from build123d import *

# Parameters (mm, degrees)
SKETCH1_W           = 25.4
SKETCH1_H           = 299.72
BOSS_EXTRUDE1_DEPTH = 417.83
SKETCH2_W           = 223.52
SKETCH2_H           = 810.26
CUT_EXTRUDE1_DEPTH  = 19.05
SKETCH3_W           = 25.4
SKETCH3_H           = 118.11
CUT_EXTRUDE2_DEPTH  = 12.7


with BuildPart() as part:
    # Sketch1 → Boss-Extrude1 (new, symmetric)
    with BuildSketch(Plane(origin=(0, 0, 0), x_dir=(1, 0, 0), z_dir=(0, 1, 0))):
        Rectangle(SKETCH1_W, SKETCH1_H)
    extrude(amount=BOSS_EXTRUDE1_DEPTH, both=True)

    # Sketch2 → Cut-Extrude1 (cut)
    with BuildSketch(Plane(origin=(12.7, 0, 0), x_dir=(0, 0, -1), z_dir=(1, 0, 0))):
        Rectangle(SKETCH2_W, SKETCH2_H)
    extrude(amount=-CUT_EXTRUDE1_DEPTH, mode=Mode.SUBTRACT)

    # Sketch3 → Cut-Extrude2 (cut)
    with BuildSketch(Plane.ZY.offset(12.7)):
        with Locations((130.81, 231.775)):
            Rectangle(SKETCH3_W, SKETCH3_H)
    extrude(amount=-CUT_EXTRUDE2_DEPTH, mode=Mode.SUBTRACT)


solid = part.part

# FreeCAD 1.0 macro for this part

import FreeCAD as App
import Part
import Sketcher
Q = App.Units.Quantity


def add_polygon(sketch, points):
    """Adds a closed chain of lines whose ends are joined by coincident constraints."""
    first, n = sketch.GeometryCount, len(points)
    for a, b in zip(points, points[1:] + points[:1]):
        sketch.addGeometry(Part.LineSegment(App.Vector(*a, 0), App.Vector(*b, 0)), False)
    for i in range(n):
        sketch.addConstraint(Sketcher.Constraint("Coincident", first + i, 2, first + (i + 1) % n, 1))

doc = App.newDocument("Part")
body = doc.addObject("PartDesign::Body", "Body")

# Sketch on XZ plane
sketch1 = doc.addObject("Sketcher::SketchObject", "Sketch")
body.addObject(sketch1)
sketch1.AttachmentSupport = (doc.XZ_Plane, [""])
sketch1.MapMode = "FlatFace"
add_polygon(sketch1, [(-13, -150), (-13, 150), (13, 150), (13, -150)])  # lines 0-3
sketch1.addConstraint(Sketcher.Constraint("Vertical", 0))
sketch1.addConstraint(Sketcher.Constraint("Horizontal", 1))
sketch1.addConstraint(Sketcher.Constraint("Vertical", 2))
sketch1.addConstraint(Sketcher.Constraint("Horizontal", 3))
sketch1.addConstraint(Sketcher.Constraint("Symmetric", 0, 2, 2, 2, -1, 1))
sketch1.addConstraint(Sketcher.Constraint("DistanceX", 1, 1, 1, 2, Q("1 in")))
sketch1.addConstraint(Sketcher.Constraint("DistanceY", 0, 1, 0, 2, Q("11.8 in")))
pad1 = doc.addObject("PartDesign::Pad", "Pad")
body.addObject(pad1)
pad1.Profile = sketch1
pad1.Length = Q("32.9 in")
pad1.Midplane = True

# Sketch on YZ plane
sketch2 = doc.addObject("Sketcher::SketchObject", "Sketch001")
body.addObject(sketch2)
sketch2.AttachmentSupport = (doc.YZ_Plane, [""])
sketch2.MapMode = "FlatFace"
sketch2.AttachmentOffset = App.Placement(App.Vector(0, 0, 0.5 * 25.4), App.Rotation())
add_polygon(sketch2, [(405, 112), (-405, 112), (-405, -112), (405, -112)])  # lines 0-3
sketch2.addConstraint(Sketcher.Constraint("Horizontal", 0))
sketch2.addConstraint(Sketcher.Constraint("Vertical", 1))
sketch2.addConstraint(Sketcher.Constraint("Horizontal", 2))
sketch2.addConstraint(Sketcher.Constraint("Vertical", 3))
sketch2.addConstraint(Sketcher.Constraint("Symmetric", 0, 2, 2, 2, -1, 1))
sketch2.addConstraint(Sketcher.Constraint("DistanceX", 0, 2, 0, 1, Q("31.9 in")))
sketch2.addConstraint(Sketcher.Constraint("DistanceY", 1, 2, 1, 1, Q("8.8 in")))
pocket1 = doc.addObject("PartDesign::Pocket", "Pocket")
body.addObject(pocket1)
pocket1.Profile = sketch2
pocket1.Length = Q("0.75 in")

# Sketch on YZ plane
sketch3 = doc.addObject("Sketcher::SketchObject", "Sketch002")
body.addObject(sketch3)
sketch3.AttachmentSupport = (doc.YZ_Plane, [""])
sketch3.MapMode = "FlatFace"
sketch3.AttachmentOffset = App.Placement(App.Vector(0, 0, -0.5 * 25.4), App.Rotation())
add_polygon(sketch3, [(291, 118), (173, 118), (173, 144), (291, 144)])  # lines 0-3
sketch3.addConstraint(Sketcher.Constraint("Horizontal", 0))
sketch3.addConstraint(Sketcher.Constraint("Vertical", 1))
sketch3.addConstraint(Sketcher.Constraint("Horizontal", 2))
sketch3.addConstraint(Sketcher.Constraint("Vertical", 3))
sketch3.addConstraint(Sketcher.Constraint("DistanceY", 1, 1, 1, 2, Q("1 in")))
sketch3.addConstraint(Sketcher.Constraint("DistanceX", 0, 2, 0, 1, Q("4.65 in")))
sketch3.addConstraint(Sketcher.Constraint("DistanceX", -1, 1, 0, 2, Q("6.8 in")))
sketch3.addConstraint(Sketcher.Constraint("DistanceY", -1, 1, 0, 2, Q("4.65 in")))
pocket2 = doc.addObject("PartDesign::Pocket", "Pocket001")
body.addObject(pocket2)
pocket2.Profile = sketch3
pocket2.Length = Q("0.5 in")
pocket2.Reversed = True

doc.recompute()
